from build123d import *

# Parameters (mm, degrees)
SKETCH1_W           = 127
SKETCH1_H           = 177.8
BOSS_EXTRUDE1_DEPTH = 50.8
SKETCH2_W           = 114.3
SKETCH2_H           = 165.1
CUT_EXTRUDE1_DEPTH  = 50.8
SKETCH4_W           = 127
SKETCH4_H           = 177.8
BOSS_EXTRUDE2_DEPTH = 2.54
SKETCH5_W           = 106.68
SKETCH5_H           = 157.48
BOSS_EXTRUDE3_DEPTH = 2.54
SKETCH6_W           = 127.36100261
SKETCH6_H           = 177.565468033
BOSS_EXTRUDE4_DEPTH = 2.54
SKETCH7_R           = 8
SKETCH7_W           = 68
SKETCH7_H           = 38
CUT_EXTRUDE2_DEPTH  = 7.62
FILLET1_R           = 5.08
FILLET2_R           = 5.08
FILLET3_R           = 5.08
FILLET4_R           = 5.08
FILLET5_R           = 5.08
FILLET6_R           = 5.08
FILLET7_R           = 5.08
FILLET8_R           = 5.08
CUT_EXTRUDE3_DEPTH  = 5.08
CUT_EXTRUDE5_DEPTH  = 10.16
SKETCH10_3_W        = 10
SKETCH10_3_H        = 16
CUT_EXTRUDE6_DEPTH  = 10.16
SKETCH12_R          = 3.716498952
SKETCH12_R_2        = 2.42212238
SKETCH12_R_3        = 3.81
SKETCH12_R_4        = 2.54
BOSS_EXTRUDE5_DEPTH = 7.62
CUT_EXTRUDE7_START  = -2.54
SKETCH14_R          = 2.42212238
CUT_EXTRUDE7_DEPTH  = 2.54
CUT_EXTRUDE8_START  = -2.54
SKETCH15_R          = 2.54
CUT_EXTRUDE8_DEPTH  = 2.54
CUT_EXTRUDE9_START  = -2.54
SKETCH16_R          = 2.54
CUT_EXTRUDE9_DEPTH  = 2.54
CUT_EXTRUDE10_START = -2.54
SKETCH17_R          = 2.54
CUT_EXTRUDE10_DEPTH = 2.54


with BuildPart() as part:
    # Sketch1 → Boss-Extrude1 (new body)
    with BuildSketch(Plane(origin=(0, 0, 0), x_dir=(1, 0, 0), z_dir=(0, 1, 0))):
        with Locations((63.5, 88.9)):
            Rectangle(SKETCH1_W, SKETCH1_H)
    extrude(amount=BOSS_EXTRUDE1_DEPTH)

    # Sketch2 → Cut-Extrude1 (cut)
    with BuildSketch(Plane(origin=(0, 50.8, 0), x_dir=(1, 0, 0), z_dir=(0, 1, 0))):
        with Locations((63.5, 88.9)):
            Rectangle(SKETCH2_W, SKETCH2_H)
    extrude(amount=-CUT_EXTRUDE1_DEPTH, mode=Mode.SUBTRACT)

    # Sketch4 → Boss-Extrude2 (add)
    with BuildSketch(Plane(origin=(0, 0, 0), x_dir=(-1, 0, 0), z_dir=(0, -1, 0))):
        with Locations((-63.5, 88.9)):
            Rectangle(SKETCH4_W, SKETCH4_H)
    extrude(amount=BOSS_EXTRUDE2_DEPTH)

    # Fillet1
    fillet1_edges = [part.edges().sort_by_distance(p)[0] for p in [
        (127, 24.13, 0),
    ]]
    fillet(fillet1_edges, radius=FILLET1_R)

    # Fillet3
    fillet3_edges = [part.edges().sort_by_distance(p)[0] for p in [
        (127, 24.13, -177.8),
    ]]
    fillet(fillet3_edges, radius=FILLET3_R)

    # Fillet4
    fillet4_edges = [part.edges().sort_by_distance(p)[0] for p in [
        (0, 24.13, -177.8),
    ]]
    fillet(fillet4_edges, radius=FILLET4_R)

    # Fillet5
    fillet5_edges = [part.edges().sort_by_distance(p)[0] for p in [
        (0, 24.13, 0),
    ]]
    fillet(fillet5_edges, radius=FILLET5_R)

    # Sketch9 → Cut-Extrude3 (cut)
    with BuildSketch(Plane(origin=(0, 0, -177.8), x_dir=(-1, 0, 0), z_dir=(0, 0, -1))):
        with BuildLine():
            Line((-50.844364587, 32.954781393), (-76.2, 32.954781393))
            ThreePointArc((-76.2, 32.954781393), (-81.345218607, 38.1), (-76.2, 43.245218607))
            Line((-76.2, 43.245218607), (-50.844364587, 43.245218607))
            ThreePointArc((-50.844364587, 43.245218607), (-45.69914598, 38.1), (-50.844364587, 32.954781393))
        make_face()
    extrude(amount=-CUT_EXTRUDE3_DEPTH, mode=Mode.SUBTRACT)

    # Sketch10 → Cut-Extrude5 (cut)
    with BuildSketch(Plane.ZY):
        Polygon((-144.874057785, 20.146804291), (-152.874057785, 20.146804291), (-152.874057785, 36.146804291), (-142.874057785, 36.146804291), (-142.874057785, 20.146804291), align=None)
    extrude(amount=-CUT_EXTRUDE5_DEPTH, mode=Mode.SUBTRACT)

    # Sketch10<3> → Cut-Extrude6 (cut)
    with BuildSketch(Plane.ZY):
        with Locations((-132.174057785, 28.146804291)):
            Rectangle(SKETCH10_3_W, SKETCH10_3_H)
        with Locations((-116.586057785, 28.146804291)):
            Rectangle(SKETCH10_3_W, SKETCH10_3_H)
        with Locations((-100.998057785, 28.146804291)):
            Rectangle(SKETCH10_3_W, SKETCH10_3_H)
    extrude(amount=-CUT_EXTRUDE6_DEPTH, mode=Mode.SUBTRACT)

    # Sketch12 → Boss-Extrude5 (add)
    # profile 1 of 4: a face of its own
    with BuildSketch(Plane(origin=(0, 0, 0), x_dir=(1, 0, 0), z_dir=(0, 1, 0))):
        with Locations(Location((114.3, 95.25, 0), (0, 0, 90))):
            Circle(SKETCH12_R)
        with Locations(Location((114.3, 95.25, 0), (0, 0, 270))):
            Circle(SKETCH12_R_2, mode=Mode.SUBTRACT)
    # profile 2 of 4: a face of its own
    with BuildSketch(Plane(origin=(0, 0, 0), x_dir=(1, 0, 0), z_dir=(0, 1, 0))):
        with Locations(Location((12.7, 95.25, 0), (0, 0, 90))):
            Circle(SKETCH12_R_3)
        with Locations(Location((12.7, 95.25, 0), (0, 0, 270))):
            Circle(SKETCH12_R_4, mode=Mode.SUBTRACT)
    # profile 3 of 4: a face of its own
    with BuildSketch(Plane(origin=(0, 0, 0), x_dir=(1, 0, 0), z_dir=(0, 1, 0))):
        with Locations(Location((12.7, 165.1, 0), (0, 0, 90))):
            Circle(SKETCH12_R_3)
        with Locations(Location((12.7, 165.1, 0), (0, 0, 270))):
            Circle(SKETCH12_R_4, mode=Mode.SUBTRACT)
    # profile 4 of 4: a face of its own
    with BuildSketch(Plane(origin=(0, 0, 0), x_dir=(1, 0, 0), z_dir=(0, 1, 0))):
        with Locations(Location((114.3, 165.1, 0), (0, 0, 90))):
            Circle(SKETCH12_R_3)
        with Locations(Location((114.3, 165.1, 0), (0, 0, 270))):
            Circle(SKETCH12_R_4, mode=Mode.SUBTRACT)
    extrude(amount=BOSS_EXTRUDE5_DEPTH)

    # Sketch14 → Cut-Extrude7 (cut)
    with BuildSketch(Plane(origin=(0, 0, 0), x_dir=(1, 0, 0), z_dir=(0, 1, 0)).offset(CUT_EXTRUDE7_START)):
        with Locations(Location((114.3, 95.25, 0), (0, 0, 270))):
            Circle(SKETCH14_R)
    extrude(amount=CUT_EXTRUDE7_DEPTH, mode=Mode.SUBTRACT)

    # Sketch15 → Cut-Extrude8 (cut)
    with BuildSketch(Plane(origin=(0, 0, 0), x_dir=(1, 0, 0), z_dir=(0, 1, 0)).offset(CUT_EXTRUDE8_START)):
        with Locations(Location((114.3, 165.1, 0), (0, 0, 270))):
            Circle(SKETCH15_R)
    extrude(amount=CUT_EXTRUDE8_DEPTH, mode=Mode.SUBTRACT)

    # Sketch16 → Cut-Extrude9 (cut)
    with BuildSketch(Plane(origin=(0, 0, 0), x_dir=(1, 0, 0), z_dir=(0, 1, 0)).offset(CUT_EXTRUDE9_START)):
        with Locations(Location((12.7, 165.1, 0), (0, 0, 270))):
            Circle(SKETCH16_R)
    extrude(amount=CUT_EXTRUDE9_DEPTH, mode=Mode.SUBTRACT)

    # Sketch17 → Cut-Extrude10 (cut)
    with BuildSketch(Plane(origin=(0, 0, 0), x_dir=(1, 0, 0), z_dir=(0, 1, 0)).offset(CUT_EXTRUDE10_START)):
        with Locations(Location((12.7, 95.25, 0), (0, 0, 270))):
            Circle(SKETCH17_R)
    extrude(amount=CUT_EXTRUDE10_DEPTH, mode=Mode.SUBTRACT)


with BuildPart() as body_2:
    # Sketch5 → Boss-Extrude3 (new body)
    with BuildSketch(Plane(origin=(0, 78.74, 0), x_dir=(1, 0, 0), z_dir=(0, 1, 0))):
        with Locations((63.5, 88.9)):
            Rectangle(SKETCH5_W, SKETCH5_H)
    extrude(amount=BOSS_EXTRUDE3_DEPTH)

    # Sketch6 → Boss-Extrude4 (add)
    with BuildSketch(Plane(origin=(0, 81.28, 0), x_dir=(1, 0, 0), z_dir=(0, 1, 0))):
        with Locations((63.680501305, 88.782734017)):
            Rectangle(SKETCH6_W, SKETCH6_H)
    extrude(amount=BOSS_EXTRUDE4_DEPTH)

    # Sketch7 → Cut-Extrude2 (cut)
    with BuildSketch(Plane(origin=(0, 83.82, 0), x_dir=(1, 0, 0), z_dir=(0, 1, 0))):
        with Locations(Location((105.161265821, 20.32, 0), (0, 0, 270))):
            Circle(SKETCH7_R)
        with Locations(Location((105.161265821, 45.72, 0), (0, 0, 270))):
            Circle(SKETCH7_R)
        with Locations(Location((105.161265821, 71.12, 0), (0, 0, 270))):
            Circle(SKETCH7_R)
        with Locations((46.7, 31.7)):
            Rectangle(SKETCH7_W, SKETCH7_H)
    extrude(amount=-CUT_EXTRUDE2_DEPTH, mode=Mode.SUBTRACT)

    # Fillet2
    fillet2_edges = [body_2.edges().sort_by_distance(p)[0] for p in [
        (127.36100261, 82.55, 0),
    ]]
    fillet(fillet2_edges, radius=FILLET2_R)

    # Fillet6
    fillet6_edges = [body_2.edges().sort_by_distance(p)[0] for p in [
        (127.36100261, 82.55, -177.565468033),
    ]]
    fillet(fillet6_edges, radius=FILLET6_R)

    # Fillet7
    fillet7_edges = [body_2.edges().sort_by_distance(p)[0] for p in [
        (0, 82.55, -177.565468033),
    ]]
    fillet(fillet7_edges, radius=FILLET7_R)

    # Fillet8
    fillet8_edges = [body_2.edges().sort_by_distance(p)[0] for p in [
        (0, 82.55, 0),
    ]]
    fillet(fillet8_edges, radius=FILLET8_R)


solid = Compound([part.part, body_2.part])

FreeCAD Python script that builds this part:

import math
import FreeCAD as App
import Part
import Sketcher

V = App.Vector
Q = App.Units.Quantity


def edges_at(feature, points):
    """Names of the edges that pass closest to the given points."""
    edges = feature.Shape.Edges
    near = lambda p: min(range(len(edges)), key=lambda i: edges[i].distToShape(Part.Vertex(*p))[0])
    return sorted({f"Edge{near(p) + 1}" for p in points})


def add_polygon(sketch, points):
    """Adds a closed chain of lines whose ends are joined by coincident constraints."""
    first, n = sketch.GeometryCount, len(points)
    for a, b in zip(points, points[1:] + points[:1]):
        sketch.addGeometry(Part.LineSegment(App.Vector(*a, 0), App.Vector(*b, 0)), False)
    for i in range(n):
        sketch.addConstraint(Sketcher.Constraint("Coincident", first + i, 2, first + (i + 1) % n, 1))

doc = App.newDocument("Part")
body = doc.addObject("PartDesign::Body", "Body")

sketch1 = doc.addObject("Sketcher::SketchObject", "Sketch")
body.addObject(sketch1)
sketch1.AttachmentSupport = (doc.XZ_Plane, [""])
sketch1.MapMode = "FlatFace"
add_polygon(sketch1, [(0, -178), (0, 0), (127, 0), (127, -178)])
sketch1.addConstraint([
    Sketcher.Constraint("Vertical", 0),
    Sketcher.Constraint("Horizontal", 1),
    Sketcher.Constraint("Vertical", 2),
    Sketcher.Constraint("Horizontal", 3),
    Sketcher.Constraint("Coincident", 0, 2, -1, 1),
    Sketcher.Constraint("DistanceX", 1, 1, 1, 2, Q("5 in")),
    Sketcher.Constraint("DistanceY", 0, 1, 0, 2, Q("7 in")),
])
pad1 = doc.addObject("PartDesign::Pad", "Pad")
body.addObject(pad1)
pad1.Profile = sketch1
pad1.Length = Q("2 in")
pad1.Reversed = True

sketch2 = doc.addObject("Sketcher::SketchObject", "Sketch001")
body.addObject(sketch2)
sketch2.AttachmentSupport = (doc.XZ_Plane, [""])
sketch2.MapMode = "FlatFace"
sketch2.AttachmentOffset = App.Placement(V(0, 0, -2 * 25.4), App.Rotation())
add_polygon(sketch2, [(6, -171), (6, -6), (121, -6), (121, -171)])
sketch2.addConstraint([
    Sketcher.Constraint("Vertical", 0),
    Sketcher.Constraint("Horizontal", 1),
    Sketcher.Constraint("Vertical", 2),
    Sketcher.Constraint("Horizontal", 3),
    Sketcher.Constraint("DistanceX", 1, 1, 1, 2, Q("4.5 in")),
    Sketcher.Constraint("DistanceY", 0, 1, 0, 2, Q("6.5 in")),
    Sketcher.Constraint("DistanceX", -1, 1, 0, 2, Q("0.25 in")),
    Sketcher.Constraint("DistanceY", 0, 2, -1, 1, Q("0.25 in")),
])
pocket1 = doc.addObject("PartDesign::Pocket", "Pocket")
body.addObject(pocket1)
pocket1.Profile = sketch2
pocket1.Length = Q("2 in")
pocket1.Reversed = True

sketch3 = doc.addObject("Sketcher::SketchObject", "Sketch002")
body.addObject(sketch3)
sketch3.AttachmentSupport = (doc.XZ_Plane, [""])
sketch3.MapMode = "FlatFace"
add_polygon(sketch3, [(127, -178), (127, 0), (0, 0), (0, -178)])
sketch3.addConstraint([
    Sketcher.Constraint("Vertical", 0),
    Sketcher.Constraint("Horizontal", 1),
    Sketcher.Constraint("Vertical", 2),
    Sketcher.Constraint("Horizontal", 3),
    Sketcher.Constraint("Coincident", 1, 2, -1, 1),
    Sketcher.Constraint("DistanceX", 1, 2, 1, 1, Q("5 in")),
    Sketcher.Constraint("DistanceY", 0, 1, 0, 2, Q("7 in")),
])
pad2 = doc.addObject("PartDesign::Pad", "Pad001")
body.addObject(pad2)
pad2.Profile = sketch3
pad2.Length = Q("0.1 in")
doc.recompute()

fillet = doc.addObject("PartDesign::Fillet", "Fillet")
body.addObject(fillet)
fillet.Base = (pad2, edges_at(pad2, [(127, 24.13, 0)]))
fillet.Radius = Q("0.2 in")
doc.recompute()

fillet2 = doc.addObject("PartDesign::Fillet", "Fillet001")
body.addObject(fillet2)
fillet2.Base = (fillet, edges_at(fillet, [(127, 24.13, -177.8)]))
fillet2.Radius = Q("0.2 in")
doc.recompute()

fillet3 = doc.addObject("PartDesign::Fillet", "Fillet002")
body.addObject(fillet3)
fillet3.Base = (fillet2, edges_at(fillet2, [(0, 24.13, -177.8)]))
fillet3.Radius = Q("0.2 in")
doc.recompute()

fillet4 = doc.addObject("PartDesign::Fillet", "Fillet003")
body.addObject(fillet4)
fillet4.Base = (fillet3, edges_at(fillet3, [(0, 24.13, 0)]))
fillet4.Radius = Q("0.2 in")

sketch4 = doc.addObject("Sketcher::SketchObject", "Sketch003")
body.addObject(sketch4)
sketch4.AttachmentSupport = (doc.XY_Plane, [""])
sketch4.MapMode = "FlatFace"
sketch4.AttachmentOffset = App.Placement(V(0, 0, -7 * 25.4), App.Rotation())
sketch4.addGeometry([
    Part.LineSegment(V(76, 33, 0), V(51, 33, 0)),
    Part.ArcOfCircle(Part.Circle(V(51, 38, 0), V(0, 0, 1), 5), math.radians(90), math.radians(270)),
    Part.LineSegment(V(51, 43, 0), V(76, 43, 0)),
    Part.ArcOfCircle(Part.Circle(V(76, 38, 0), V(0, 0, 1), 5), math.radians(-90), math.radians(90)),
], False)
sketch4.addConstraint([
    Sketcher.Constraint("Tangent", 0, 2, 1, 2),
    Sketcher.Constraint("Tangent", 1, 1, 2, 1),
    Sketcher.Constraint("Tangent", 2, 2, 3, 2),
    Sketcher.Constraint("Tangent", 3, 1, 0, 1),
    Sketcher.Constraint("Horizontal", 0),
    Sketcher.Constraint("Horizontal", 2),
    Sketcher.Constraint("DistanceX", -1, 1, 3, 3, Q("3 in")),
    Sketcher.Constraint("DistanceY", -1, 1, 1, 3, Q("1.5 in")),
    Sketcher.Constraint("Radius", 1, Q("5.145219 mm")),
    Sketcher.Constraint("DistanceX", 0, 2, 0, 1, Q("25.355635 mm")),
])
pocket2 = doc.addObject("PartDesign::Pocket", "Pocket001")
body.addObject(pocket2)
pocket2.Profile = sketch4
pocket2.Length = Q("0.2 in")
pocket2.Reversed = True

sketch5 = doc.addObject("Sketcher::SketchObject", "Sketch004")
body.addObject(sketch5)
sketch5.AttachmentSupport = (doc.YZ_Plane, [""])
sketch5.MapMode = "FlatFace"
add_polygon(sketch5, [(20, -153), (20, -143), (36, -143), (36, -153)])
sketch5.addConstraint([
    Sketcher.Constraint("Vertical", 0),
    Sketcher.Constraint("Horizontal", 1),
    Sketcher.Constraint("Vertical", 2),
    Sketcher.Constraint("Horizontal", 3),
    Sketcher.Constraint("DistanceX", 1, 1, 1, 2, Q("16 mm")),
    Sketcher.Constraint("DistanceY", 0, 1, 0, 2, Q("10 mm")),
    Sketcher.Constraint("DistanceX", -1, 1, 0, 2, Q("20.146804 mm")),
    Sketcher.Constraint("DistanceY", 0, 2, -1, 1, Q("142.874058 mm")),
])
pocket3 = doc.addObject("PartDesign::Pocket", "Pocket002")
body.addObject(pocket3)
pocket3.Profile = sketch5
pocket3.Length = Q("0.4 in")
pocket3.Reversed = True

sketch6 = doc.addObject("Sketcher::SketchObject", "Sketch005")
body.addObject(sketch6)
sketch6.AttachmentSupport = (doc.YZ_Plane, [""])
sketch6.MapMode = "FlatFace"
add_polygon(sketch6, [(36, -137), (20, -137), (20, -127), (36, -127)])
add_polygon(sketch6, [(36, -122), (20, -122), (20, -112), (36, -112)])
add_polygon(sketch6, [(36, -106), (20, -106), (20, -96), (36, -96)])
sketch6.addConstraint([
    Sketcher.Constraint("Horizontal", 0),
    Sketcher.Constraint("Vertical", 1),
    Sketcher.Constraint("Horizontal", 2),
    Sketcher.Constraint("Vertical", 3),
    Sketcher.Constraint("Horizontal", 4),
    Sketcher.Constraint("Vertical", 5),
    Sketcher.Constraint("Horizontal", 6),
    Sketcher.Constraint("Vertical", 7),
    Sketcher.Constraint("Horizontal", 8),
    Sketcher.Constraint("Vertical", 9),
    Sketcher.Constraint("Horizontal", 10),
    Sketcher.Constraint("Vertical", 11),
    Sketcher.Constraint("Vertical", 1, 2, 4, 2),
    Sketcher.Constraint("Vertical", 3, 2, 6, 2),
    Sketcher.Constraint("Vertical", 5, 2, 8, 2),
    Sketcher.Constraint("Vertical", 7, 2, 10, 2),
    Sketcher.Constraint("Equal", 3, 5),
    Sketcher.Constraint("Equal", 7, 9),
    Sketcher.Constraint("DistanceY", 1, 2, 4, 2, Q("0.22 in")),
    Sketcher.Constraint("DistanceY", 5, 2, 8, 2, Q("0.22 in")),
    Sketcher.Constraint("DistanceX", 0, 2, 0, 1, Q("16 mm")),
    Sketcher.Constraint("DistanceY", 1, 1, 1, 2, Q("10 mm")),
    Sketcher.Constraint("DistanceX", -1, 1, 0, 2, Q("20.146804 mm")),
    Sketcher.Constraint("DistanceY", 0, 2, -1, 1, Q("137.174058 mm")),
])
pocket4 = doc.addObject("PartDesign::Pocket", "Pocket003")
body.addObject(pocket4)
pocket4.Profile = sketch6
pocket4.Length = Q("0.4 in")
pocket4.Reversed = True

sketch7 = doc.addObject("Sketcher::SketchObject", "Sketch006")
body.addObject(sketch7)
sketch7.AttachmentSupport = (doc.XZ_Plane, [""])
sketch7.MapMode = "FlatFace"
sketch7.addGeometry([
    Part.Circle(V(114.3, -95.2, 0), V(0, 0, 1), 3.7),
    Part.Circle(V(114.3, -95.2, 0), V(0, 0, 1), 2.4),
    Part.Circle(V(12.7, -95.2, 0), V(0, 0, 1), 3.8),
    Part.Circle(V(12.7, -95.2, 0), V(0, 0, 1), 2.5),
    Part.Circle(V(12.7, -165.1, 0), V(0, 0, 1), 3.8),
    Part.Circle(V(12.7, -165.1, 0), V(0, 0, 1), 2.5),
    Part.Circle(V(114.3, -165.1, 0), V(0, 0, 1), 3.8),
    Part.Circle(V(114.3, -165.1, 0), V(0, 0, 1), 2.5),
], False)
sketch7.addConstraint([
    Sketcher.Constraint("Coincident", 1, 3, 0, 3),
    Sketcher.Constraint("Coincident", 3, 3, 2, 3),
    Sketcher.Constraint("Coincident", 5, 3, 4, 3),
    Sketcher.Constraint("Coincident", 7, 3, 6, 3),
    Sketcher.Constraint("Equal", 2, 4),
    Sketcher.Constraint("Equal", 3, 5),
    Sketcher.Constraint("Equal", 4, 6),
    Sketcher.Constraint("Equal", 5, 7),
    Sketcher.Constraint("Horizontal", 1, 3, 2, 3),
    Sketcher.Constraint("Horizontal", 5, 3, 6, 3),
    Sketcher.Constraint("Vertical", 3, 3, 4, 3),
    Sketcher.Constraint("Vertical", 1, 3, 6, 3),
    Sketcher.Constraint("Diameter", 2, Q("0.3 in")),
    Sketcher.Constraint("Diameter", 3, Q("0.2 in")),
    Sketcher.Constraint("DistanceX", 2, 3, 0, 3, Q("4 in")),
    Sketcher.Constraint("DistanceX", -1, 1, 0, 3, Q("4.5 in")),
    Sketcher.Constraint("DistanceY", 4, 3, -1, 1, Q("6.5 in")),
    Sketcher.Constraint("DistanceY", 0, 3, -1, 1, Q("3.75 in")),
    Sketcher.Constraint("Diameter", 0, Q("7.432998 mm")),
    Sketcher.Constraint("Diameter", 1, Q("4.844245 mm")),
])
pad3 = doc.addObject("PartDesign::Pad", "Pad002")
body.addObject(pad3)
pad3.Profile = sketch7
pad3.Length = Q("0.3 in")
pad3.Reversed = True

sketch8 = doc.addObject("Sketcher::SketchObject", "Sketch007")
body.addObject(sketch8)
sketch8.AttachmentSupport = (doc.XZ_Plane, [""])
sketch8.MapMode = "FlatFace"
sketch8.AttachmentOffset = App.Placement(V(0, 0, 0.1 * 25.4), App.Rotation())
sketch8.addGeometry(Part.Circle(V(114.3, -95.2, 0), V(0, 0, 1), 2.4), False)
sketch8.addConstraint([
    Sketcher.Constraint("DistanceX", -1, 1, 0, 3, Q("4.5 in")),
    Sketcher.Constraint("DistanceY", 0, 3, -1, 1, Q("3.75 in")),
    Sketcher.Constraint("Diameter", 0, Q("4.844245 mm")),
])
pocket5 = doc.addObject("PartDesign::Pocket", "Pocket004")
body.addObject(pocket5)
pocket5.Profile = sketch8
pocket5.Length = Q("0.1 in")

sketch9 = doc.addObject("Sketcher::SketchObject", "Sketch008")
body.addObject(sketch9)
sketch9.AttachmentSupport = (doc.XZ_Plane, [""])
sketch9.MapMode = "FlatFace"
sketch9.AttachmentOffset = App.Placement(V(0, 0, 0.1 * 25.4), App.Rotation())
sketch9.addGeometry(Part.Circle(V(114.3, -165.1, 0), V(0, 0, 1), 2.5), False)
sketch9.addConstraint([
    Sketcher.Constraint("Diameter", 0, Q("0.2 in")),
    Sketcher.Constraint("DistanceX", -1, 1, 0, 3, Q("4.5 in")),
    Sketcher.Constraint("DistanceY", 0, 3, -1, 1, Q("6.5 in")),
])
pocket6 = doc.addObject("PartDesign::Pocket", "Pocket005")
body.addObject(pocket6)
pocket6.Profile = sketch9
pocket6.Length = Q("0.1 in")

sketch10 = doc.addObject("Sketcher::SketchObject", "Sketch009")
body.addObject(sketch10)
sketch10.AttachmentSupport = (doc.XZ_Plane, [""])
sketch10.MapMode = "FlatFace"
sketch10.AttachmentOffset = App.Placement(V(0, 0, 0.1 * 25.4), App.Rotation())
sketch10.addGeometry(Part.Circle(V(12.7, -165.1, 0), V(0, 0, 1), 2.5), False)
sketch10.addConstraint([
    Sketcher.Constraint("Diameter", 0, Q("0.2 in")),
    Sketcher.Constraint("DistanceX", -1, 1, 0, 3, Q("0.5 in")),
    Sketcher.Constraint("DistanceY", 0, 3, -1, 1, Q("6.5 in")),
])
pocket7 = doc.addObject("PartDesign::Pocket", "Pocket006")
body.addObject(pocket7)
pocket7.Profile = sketch10
pocket7.Length = Q("0.1 in")

sketch11 = doc.addObject("Sketcher::SketchObject", "Sketch010")
body.addObject(sketch11)
sketch11.AttachmentSupport = (doc.XZ_Plane, [""])
sketch11.MapMode = "FlatFace"
sketch11.AttachmentOffset = App.Placement(V(0, 0, 0.1 * 25.4), App.Rotation())
sketch11.addGeometry(Part.Circle(V(12.7, -95.2, 0), V(0, 0, 1), 2.5), False)
sketch11.addConstraint([
    Sketcher.Constraint("Diameter", 0, Q("0.2 in")),
    Sketcher.Constraint("DistanceX", -1, 1, 0, 3, Q("0.5 in")),
    Sketcher.Constraint("DistanceY", 0, 3, -1, 1, Q("3.75 in")),
])
pocket8 = doc.addObject("PartDesign::Pocket", "Pocket007")
body.addObject(pocket8)
pocket8.Profile = sketch11
pocket8.Length = Q("0.1 in")
body2 = doc.addObject("PartDesign::Body", "Body001")

sketch12 = doc.addObject("Sketcher::SketchObject", "Sketch011")
body2.addObject(sketch12)
sketch12.AttachmentSupport = (doc.getObject("XZ_Plane001"), [""])
sketch12.MapMode = "FlatFace"
sketch12.AttachmentOffset = App.Placement(V(0, 0, -3.1 * 25.4), App.Rotation())
add_polygon(sketch12, [(10, -168), (10, -10), (117, -10), (117, -168)])
sketch12.addConstraint([
    Sketcher.Constraint("Vertical", 0),
    Sketcher.Constraint("Horizontal", 1),
    Sketcher.Constraint("Vertical", 2),
    Sketcher.Constraint("Horizontal", 3),
    Sketcher.Constraint("DistanceX", 1, 1, 1, 2, Q("4.2 in")),
    Sketcher.Constraint("DistanceY", 0, 1, 0, 2, Q("6.2 in")),
    Sketcher.Constraint("DistanceX", -1, 1, 0, 2, Q("0.4 in")),
    Sketcher.Constraint("DistanceY", 0, 2, -1, 1, Q("0.4 in")),
])
pad4 = doc.addObject("PartDesign::Pad", "Pad003")
body2.addObject(pad4)
pad4.Profile = sketch12
pad4.Length = Q("0.1 in")
pad4.Reversed = True

sketch13 = doc.addObject("Sketcher::SketchObject", "Sketch012")
body2.addObject(sketch13)
sketch13.AttachmentSupport = (doc.getObject("XZ_Plane001"), [""])
sketch13.MapMode = "FlatFace"
sketch13.AttachmentOffset = App.Placement(V(0, 0, -3.2 * 25.4), App.Rotation())
add_polygon(sketch13, [(0, -178), (0, 0), (127, 0), (127, -178)])
sketch13.addConstraint([
    Sketcher.Constraint("Vertical", 0),
    Sketcher.Constraint("Horizontal", 1),
    Sketcher.Constraint("Vertical", 2),
    Sketcher.Constraint("Horizontal", 3),
    Sketcher.Constraint("Coincident", 0, 2, -1, 1),
    Sketcher.Constraint("DistanceY", 0, 1, 0, 2, Q("177.565468 mm")),
    Sketcher.Constraint("DistanceX", 1, 1, 1, 2, Q("127.361003 mm")),
])
pad5 = doc.addObject("PartDesign::Pad", "Pad004")
body2.addObject(pad5)
pad5.Profile = sketch13
pad5.Length = Q("0.1 in")
pad5.Reversed = True

sketch14 = doc.addObject("Sketcher::SketchObject", "Sketch013")
body2.addObject(sketch14)
sketch14.AttachmentSupport = (doc.getObject("XZ_Plane001"), [""])
sketch14.MapMode = "FlatFace"
sketch14.AttachmentOffset = App.Placement(V(0, 0, -3.3 * 25.4), App.Rotation())
sketch14.addGeometry(Part.Circle(V(105, -20, 0), V(0, 0, 1), 8), False)
sketch14.addGeometry(Part.Circle(V(105, -46, 0), V(0, 0, 1), 8), False)
sketch14.addGeometry(Part.Circle(V(105, -71, 0), V(0, 0, 1), 8), False)
add_polygon(sketch14, [(13, -51), (13, -13), (81, -13), (81, -51)])
sketch14.addConstraint([
    Sketcher.Constraint("Vertical", 3),
    Sketcher.Constraint("Horizontal", 4),
    Sketcher.Constraint("Vertical", 5),
    Sketcher.Constraint("Horizontal", 6),
    Sketcher.Constraint("Equal", 0, 1),
    Sketcher.Constraint("Equal", 1, 2),
    Sketcher.Constraint("Vertical", 0, 3, 1, 3),
    Sketcher.Constraint("Vertical", 1, 3, 2, 3),
    Sketcher.Constraint("DistanceY", 1, 3, 0, 3, Q("1 in")),
    Sketcher.Constraint("DistanceY", 2, 3, 1, 3, Q("1 in")),
    Sketcher.Constraint("DistanceY", 0, 3, -1, 1, Q("0.8 in")),
    Sketcher.Constraint("DistanceX", -1, 1, 3, 2, Q("0.5 in")),
    Sketcher.Constraint("DistanceY", 3, 2, -1, 1, Q("0.5 in")),
    Sketcher.Constraint("Diameter", 0, Q("16 mm")),
    Sketcher.Constraint("DistanceX", 4, 1, 4, 2, Q("68 mm")),
    Sketcher.Constraint("DistanceY", 3, 1, 3, 2, Q("38 mm")),
    Sketcher.Constraint("DistanceX", -1, 1, 0, 3, Q("105.161266 mm")),
])
pocket9 = doc.addObject("PartDesign::Pocket", "Pocket008")
body2.addObject(pocket9)
pocket9.Profile = sketch14
pocket9.Length = Q("0.3 in")
pocket9.Reversed = True
doc.recompute()

fillet5 = doc.addObject("PartDesign::Fillet", "Fillet004")
body2.addObject(fillet5)
fillet5.Base = (pocket9, edges_at(pocket9, [(127.361, 82.55, 0)]))
fillet5.Radius = Q("0.2 in")
doc.recompute()

fillet6 = doc.addObject("PartDesign::Fillet", "Fillet005")
body2.addObject(fillet6)
fillet6.Base = (fillet5, edges_at(fillet5, [(127.361, 82.55, -177.565)]))
fillet6.Radius = Q("0.2 in")
doc.recompute()

fillet7 = doc.addObject("PartDesign::Fillet", "Fillet006")
body2.addObject(fillet7)
fillet7.Base = (fillet6, edges_at(fillet6, [(0, 82.55, -177.565)]))
fillet7.Radius = Q("0.2 in")
doc.recompute()

fillet8 = doc.addObject("PartDesign::Fillet", "Fillet007")
body2.addObject(fillet8)
fillet8.Base = (fillet7, edges_at(fillet7, [(0, 82.55, 0)]))
fillet8.Radius = Q("0.2 in")

doc.recompute()
